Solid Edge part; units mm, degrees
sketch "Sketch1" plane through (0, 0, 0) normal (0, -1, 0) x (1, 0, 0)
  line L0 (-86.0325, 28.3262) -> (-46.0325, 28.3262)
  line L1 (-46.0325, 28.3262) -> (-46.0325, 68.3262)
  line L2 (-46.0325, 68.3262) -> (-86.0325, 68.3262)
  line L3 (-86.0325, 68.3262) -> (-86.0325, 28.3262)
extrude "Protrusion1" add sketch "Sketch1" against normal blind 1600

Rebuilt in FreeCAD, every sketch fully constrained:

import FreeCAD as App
import Part
import Sketcher
from FreeCAD import Vector

doc = App.newDocument("Part")
body = doc.addObject("PartDesign::Body", "Body")

sketch1 = body.newObject("Sketcher::SketchObject", "Sketch")
sketch1.AttachmentSupport = (doc.getObject("XZ_Plane"), [""])
sketch1.MapMode = "FlatFace"
sketch1.addGeometry(Part.LineSegment(Vector(-86.0325, 68.3262, 0), Vector(-86.0325, 28.3262, 0)), False)
sketch1.addGeometry(Part.LineSegment(Vector(-86.0325, 28.3262, 0), Vector(-46.0325, 28.3262, 0)), False)
sketch1.addGeometry(Part.LineSegment(Vector(-46.0325, 28.3262, 0), Vector(-46.0325, 68.3262, 0)), False)
sketch1.addGeometry(Part.LineSegment(Vector(-46.0325, 68.3262, 0), Vector(-86.0325, 68.3262, 0)), False)
sketch1.addConstraint(Sketcher.Constraint("Coincident", 0, 2, 1, 1))
sketch1.addConstraint(Sketcher.Constraint("Coincident", 1, 2, 2, 1))
sketch1.addConstraint(Sketcher.Constraint("Coincident", 2, 2, 3, 1))
sketch1.addConstraint(Sketcher.Constraint("Coincident", 3, 2, 0, 1))
sketch1.addConstraint(Sketcher.Constraint("Vertical", 0))
sketch1.addConstraint(Sketcher.Constraint("Horizontal", 1))
sketch1.addConstraint(Sketcher.Constraint("Vertical", 2))
sketch1.addConstraint(Sketcher.Constraint("Horizontal", 3))
sketch1.addConstraint(Sketcher.Constraint("Equal", 3, 0))
sketch1.addConstraint(Sketcher.Constraint("DistanceX", 1, 1, 1, 2, 40.0))
sketch1.addConstraint(Sketcher.Constraint("DistanceX", 0, 2, -1, 1, 86.0325))
sketch1.addConstraint(Sketcher.Constraint("DistanceY", -1, 1, 0, 2, 28.3262))
pad1 = body.newObject("PartDesign::Pad", "Pad")
pad1.Profile = sketch1
pad1.Length = 1600
pad1.Reversed = True

doc.recompute()
